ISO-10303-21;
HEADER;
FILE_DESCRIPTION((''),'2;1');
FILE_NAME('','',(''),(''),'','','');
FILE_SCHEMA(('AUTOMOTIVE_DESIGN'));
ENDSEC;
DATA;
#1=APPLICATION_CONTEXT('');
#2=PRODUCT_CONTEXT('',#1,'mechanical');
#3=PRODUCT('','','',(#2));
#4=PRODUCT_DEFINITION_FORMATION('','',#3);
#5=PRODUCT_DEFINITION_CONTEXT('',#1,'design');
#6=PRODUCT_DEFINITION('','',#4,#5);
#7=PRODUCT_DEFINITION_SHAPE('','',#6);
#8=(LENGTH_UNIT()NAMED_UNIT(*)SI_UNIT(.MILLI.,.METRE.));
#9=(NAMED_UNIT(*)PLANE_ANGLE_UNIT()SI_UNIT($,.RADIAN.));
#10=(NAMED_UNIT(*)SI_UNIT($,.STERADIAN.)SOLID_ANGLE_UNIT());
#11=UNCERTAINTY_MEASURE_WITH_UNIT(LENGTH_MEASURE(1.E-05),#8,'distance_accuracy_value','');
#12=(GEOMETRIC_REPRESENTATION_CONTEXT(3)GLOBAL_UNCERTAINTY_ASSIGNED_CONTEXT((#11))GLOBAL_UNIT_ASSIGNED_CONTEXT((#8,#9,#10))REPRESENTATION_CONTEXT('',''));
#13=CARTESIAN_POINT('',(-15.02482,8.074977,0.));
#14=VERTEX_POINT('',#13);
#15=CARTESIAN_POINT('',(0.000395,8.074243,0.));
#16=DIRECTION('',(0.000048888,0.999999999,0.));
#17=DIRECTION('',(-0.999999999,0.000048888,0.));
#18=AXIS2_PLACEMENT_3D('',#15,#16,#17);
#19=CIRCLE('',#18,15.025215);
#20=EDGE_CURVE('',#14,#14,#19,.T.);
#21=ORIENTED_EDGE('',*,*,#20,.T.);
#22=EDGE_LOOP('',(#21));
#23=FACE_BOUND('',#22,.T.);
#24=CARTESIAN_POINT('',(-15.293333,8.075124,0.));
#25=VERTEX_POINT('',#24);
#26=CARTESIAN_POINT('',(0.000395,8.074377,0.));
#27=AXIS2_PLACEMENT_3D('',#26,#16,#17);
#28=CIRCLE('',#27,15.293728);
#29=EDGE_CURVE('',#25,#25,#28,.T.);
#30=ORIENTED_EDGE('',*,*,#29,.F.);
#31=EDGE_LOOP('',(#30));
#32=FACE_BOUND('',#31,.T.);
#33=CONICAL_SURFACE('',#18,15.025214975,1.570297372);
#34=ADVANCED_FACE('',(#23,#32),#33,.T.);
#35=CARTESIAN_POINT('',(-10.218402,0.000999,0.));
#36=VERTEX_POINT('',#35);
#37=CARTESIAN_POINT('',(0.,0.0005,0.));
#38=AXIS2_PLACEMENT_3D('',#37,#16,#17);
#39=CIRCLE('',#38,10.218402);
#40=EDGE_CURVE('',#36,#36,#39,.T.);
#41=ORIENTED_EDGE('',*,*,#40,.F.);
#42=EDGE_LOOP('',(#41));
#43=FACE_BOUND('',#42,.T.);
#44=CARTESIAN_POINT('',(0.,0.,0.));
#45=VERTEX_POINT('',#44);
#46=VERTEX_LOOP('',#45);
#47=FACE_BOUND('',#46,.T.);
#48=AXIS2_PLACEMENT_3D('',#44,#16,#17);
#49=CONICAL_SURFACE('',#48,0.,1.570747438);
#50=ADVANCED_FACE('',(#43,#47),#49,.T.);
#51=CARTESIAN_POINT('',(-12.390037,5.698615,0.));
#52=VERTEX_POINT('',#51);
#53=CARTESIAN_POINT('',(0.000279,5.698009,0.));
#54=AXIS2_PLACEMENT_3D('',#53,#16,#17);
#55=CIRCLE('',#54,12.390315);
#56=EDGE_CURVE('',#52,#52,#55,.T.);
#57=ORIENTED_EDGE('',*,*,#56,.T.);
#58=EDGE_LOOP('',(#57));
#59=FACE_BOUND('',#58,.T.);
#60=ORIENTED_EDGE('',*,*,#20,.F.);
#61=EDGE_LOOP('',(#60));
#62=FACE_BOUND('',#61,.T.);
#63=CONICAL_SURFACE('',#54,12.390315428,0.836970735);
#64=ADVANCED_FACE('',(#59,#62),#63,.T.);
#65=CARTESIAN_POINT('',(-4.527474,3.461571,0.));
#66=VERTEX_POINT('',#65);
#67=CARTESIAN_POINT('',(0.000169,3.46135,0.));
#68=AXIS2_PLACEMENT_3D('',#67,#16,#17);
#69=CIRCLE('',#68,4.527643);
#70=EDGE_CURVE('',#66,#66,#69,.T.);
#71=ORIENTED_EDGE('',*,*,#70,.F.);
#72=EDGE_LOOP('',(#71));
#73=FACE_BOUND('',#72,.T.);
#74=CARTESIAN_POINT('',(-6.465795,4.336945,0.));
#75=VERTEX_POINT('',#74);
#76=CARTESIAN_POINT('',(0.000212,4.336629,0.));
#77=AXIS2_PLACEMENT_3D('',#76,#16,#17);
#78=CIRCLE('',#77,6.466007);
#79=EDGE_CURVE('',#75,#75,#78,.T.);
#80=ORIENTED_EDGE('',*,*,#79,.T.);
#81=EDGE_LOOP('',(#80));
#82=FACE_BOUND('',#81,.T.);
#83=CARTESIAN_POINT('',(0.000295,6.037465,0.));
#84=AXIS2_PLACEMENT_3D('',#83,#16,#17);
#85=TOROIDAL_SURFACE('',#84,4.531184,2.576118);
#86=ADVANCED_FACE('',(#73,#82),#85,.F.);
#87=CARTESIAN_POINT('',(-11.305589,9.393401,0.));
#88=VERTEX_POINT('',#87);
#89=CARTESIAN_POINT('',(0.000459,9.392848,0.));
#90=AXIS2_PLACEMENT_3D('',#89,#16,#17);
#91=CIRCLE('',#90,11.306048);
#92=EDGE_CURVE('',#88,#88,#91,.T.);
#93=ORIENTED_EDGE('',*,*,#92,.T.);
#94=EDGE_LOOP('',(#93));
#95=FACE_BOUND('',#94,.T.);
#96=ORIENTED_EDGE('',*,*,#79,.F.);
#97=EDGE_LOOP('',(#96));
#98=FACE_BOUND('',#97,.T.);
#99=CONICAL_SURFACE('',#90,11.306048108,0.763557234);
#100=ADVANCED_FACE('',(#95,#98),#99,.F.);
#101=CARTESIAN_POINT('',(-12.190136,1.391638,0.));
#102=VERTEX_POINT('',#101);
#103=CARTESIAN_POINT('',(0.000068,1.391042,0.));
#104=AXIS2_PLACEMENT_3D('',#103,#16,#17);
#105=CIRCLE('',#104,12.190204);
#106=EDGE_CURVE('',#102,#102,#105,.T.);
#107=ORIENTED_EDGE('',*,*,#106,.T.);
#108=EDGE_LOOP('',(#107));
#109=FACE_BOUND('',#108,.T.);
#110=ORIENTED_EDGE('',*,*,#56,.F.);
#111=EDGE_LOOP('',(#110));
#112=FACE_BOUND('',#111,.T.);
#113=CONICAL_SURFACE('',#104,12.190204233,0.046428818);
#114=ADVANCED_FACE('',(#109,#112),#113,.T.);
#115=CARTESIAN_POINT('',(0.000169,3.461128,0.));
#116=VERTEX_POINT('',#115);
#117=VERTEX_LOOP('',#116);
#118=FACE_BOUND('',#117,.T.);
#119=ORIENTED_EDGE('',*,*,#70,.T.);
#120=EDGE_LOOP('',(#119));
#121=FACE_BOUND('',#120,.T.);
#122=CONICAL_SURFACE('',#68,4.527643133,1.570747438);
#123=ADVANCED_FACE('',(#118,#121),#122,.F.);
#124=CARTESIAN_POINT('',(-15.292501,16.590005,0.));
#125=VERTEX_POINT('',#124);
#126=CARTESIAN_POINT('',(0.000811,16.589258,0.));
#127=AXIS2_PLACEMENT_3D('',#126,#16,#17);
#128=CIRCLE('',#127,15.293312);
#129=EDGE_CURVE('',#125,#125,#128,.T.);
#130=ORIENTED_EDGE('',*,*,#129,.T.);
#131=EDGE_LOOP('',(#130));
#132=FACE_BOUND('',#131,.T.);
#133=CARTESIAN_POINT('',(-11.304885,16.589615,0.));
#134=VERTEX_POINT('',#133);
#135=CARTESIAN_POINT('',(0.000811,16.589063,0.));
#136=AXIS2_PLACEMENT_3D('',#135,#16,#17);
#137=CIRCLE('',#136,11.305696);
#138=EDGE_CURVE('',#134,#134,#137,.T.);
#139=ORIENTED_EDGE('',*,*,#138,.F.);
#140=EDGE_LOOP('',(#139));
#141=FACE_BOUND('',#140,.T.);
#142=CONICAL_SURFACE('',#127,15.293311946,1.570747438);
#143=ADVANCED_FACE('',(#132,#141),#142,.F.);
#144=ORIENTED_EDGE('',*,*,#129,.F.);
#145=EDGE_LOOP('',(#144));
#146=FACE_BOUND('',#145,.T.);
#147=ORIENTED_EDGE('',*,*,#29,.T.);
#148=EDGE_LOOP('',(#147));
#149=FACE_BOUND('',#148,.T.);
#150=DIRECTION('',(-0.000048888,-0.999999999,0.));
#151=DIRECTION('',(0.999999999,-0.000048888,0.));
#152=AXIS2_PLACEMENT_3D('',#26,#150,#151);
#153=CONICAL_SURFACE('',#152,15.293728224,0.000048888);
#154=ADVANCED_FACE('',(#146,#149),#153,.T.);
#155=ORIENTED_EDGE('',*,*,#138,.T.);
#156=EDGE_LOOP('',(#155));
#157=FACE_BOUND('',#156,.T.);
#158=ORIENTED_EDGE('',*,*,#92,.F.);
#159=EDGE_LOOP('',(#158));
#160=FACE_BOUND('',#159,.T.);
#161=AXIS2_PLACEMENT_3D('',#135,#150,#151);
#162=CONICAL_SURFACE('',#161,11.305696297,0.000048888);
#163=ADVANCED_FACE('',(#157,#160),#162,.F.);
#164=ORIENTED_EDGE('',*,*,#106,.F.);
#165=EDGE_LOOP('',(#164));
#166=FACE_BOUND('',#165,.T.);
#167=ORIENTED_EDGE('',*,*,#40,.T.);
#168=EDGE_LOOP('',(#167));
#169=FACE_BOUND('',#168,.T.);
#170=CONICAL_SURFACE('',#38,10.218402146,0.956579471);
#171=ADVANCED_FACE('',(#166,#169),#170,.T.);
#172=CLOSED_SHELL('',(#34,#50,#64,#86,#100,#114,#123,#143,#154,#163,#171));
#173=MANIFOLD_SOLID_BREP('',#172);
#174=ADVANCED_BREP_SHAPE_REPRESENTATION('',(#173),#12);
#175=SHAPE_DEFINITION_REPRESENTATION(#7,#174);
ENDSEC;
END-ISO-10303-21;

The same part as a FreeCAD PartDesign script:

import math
import FreeCAD as App
import Part
import Sketcher
Q = App.Units.Quantity

doc = App.newDocument("Part")
body = doc.addObject("PartDesign::Body", "Body")

# Sketch on XY plane
sketch1 = body.newObject("Sketcher::SketchObject", "Sketch")
sketch1.AttachmentSupport = (doc.getObject("XY_Plane"), [""])
sketch1.MapMode = "FlatFace"
sketch1.addGeometry(Part.LineSegment(App.Vector(0.000169, 3.461128, 0), App.Vector(0, 0, 0)), False)
sketch1.addGeometry(Part.LineSegment(App.Vector(0, 0, 0), App.Vector(10.218402, 0, 0)), False)
sketch1.addGeometry(Part.LineSegment(App.Vector(10.218402, 0, 0), App.Vector(12.190272, 1.390446, 0)), False)
sketch1.addGeometry(Part.LineSegment(App.Vector(12.190272, 1.390446, 0), App.Vector(12.390594, 5.697404, 0)), False)
sketch1.addGeometry(Part.LineSegment(App.Vector(12.390594, 5.697404, 0), App.Vector(15.02561, 8.073508, 0)), False)
sketch1.addGeometry(Part.LineSegment(App.Vector(15.02561, 8.073508, 0), App.Vector(15.294123, 8.073629, 0)), False)
sketch1.addGeometry(Part.LineSegment(App.Vector(15.294123, 8.073629, 0), App.Vector(15.294123, 16.58851, 0)), False)
sketch1.addGeometry(Part.LineSegment(App.Vector(15.294123, 16.58851, 0), App.Vector(11.306507, 16.58851, 0)), False)
sketch1.addGeometry(Part.LineSegment(App.Vector(11.306507, 16.58851, 0), App.Vector(11.306507, 9.392296, 0)), False)
sketch1.addGeometry(Part.LineSegment(App.Vector(11.306507, 9.392296, 0), App.Vector(6.466219, 4.336313, 0)), False)
sketch1.addGeometry(Part.ArcOfCircle(Part.Circle(App.Vector(4.531479, 6.037243, 0), App.Vector(0, 0, 1), 2.576118), math.radians(-90.081551), math.radians(-41.320382)), False)
sketch1.addGeometry(Part.LineSegment(App.Vector(4.527812, 3.461128, 0), App.Vector(0.000169, 3.461128, 0)), False)
sketch1.addGeometry(Part.LineSegment(App.Vector(0.000811, 16.589258, 0), App.Vector(0, 0, 0)), True)  # axis
sketch1.addConstraint(Sketcher.Constraint("Coincident", 0, 2, 1, 1))
sketch1.addConstraint(Sketcher.Constraint("Coincident", 1, 2, 2, 1))
sketch1.addConstraint(Sketcher.Constraint("Coincident", 2, 2, 3, 1))
sketch1.addConstraint(Sketcher.Constraint("Coincident", 3, 2, 4, 1))
sketch1.addConstraint(Sketcher.Constraint("Coincident", 4, 2, 5, 1))
sketch1.addConstraint(Sketcher.Constraint("Coincident", 5, 2, 6, 1))
sketch1.addConstraint(Sketcher.Constraint("Coincident", 6, 2, 7, 1))
sketch1.addConstraint(Sketcher.Constraint("Coincident", 7, 2, 8, 1))
sketch1.addConstraint(Sketcher.Constraint("Coincident", 8, 2, 9, 1))
sketch1.addConstraint(Sketcher.Constraint("Coincident", 9, 2, 10, 2))
sketch1.addConstraint(Sketcher.Constraint("Coincident", 10, 1, 11, 1))
sketch1.addConstraint(Sketcher.Constraint("Coincident", 11, 2, 0, 1))
sketch1.addConstraint(Sketcher.Constraint("Horizontal", 1))
sketch1.addConstraint(Sketcher.Constraint("Vertical", 6))
sketch1.addConstraint(Sketcher.Constraint("Horizontal", 7))
sketch1.addConstraint(Sketcher.Constraint("Vertical", 8))
sketch1.addConstraint(Sketcher.Constraint("Horizontal", 11))
sketch1.addConstraint(Sketcher.Constraint("Coincident", 0, 2, -1, 1))
sketch1.addConstraint(Sketcher.Constraint("Coincident", 12, 2, -1, 1))
sketch1.addConstraint(Sketcher.Constraint("Parallel", 0, 12))
sketch1.addConstraint(Sketcher.Constraint("Radius", 10, Q("2.576118 mm")))
sketch1.addConstraint(Sketcher.Constraint("DistanceY", 4, 2, 6, 2, Q("8.515002 mm")))
sketch1.addConstraint(Sketcher.Constraint("Distance", 2, Q("2.412802 mm")))
sketch1.addConstraint(Sketcher.Constraint("DistanceY", 6, 1, 6, 2, Q("8.514881 mm")))
sketch1.addConstraint(Sketcher.Constraint("Distance", 0, Q("3.461128 mm")))
sketch1.addConstraint(Sketcher.Constraint("DistanceX", 1, 1, 1, 2, Q("10.218402 mm")))
sketch1.addConstraint(Sketcher.Constraint("DistanceX", 7, 2, 7, 1, Q("3.987616 mm")))
sketch1.addConstraint(Sketcher.Constraint("DistanceX", 11, 2, 11, 1, Q("4.527643 mm")))
sketch1.addConstraint(Sketcher.Constraint("DistanceY", 8, 2, 8, 1, Q("7.196214 mm")))
sketch1.addConstraint(Sketcher.Constraint("DistanceX", -1, 1, 10, 3, Q("4.531479 mm")))
sketch1.addConstraint(Sketcher.Constraint("DistanceX", -1, 1, 4, 2, Q("15.02561 mm")))
sketch1.addConstraint(Sketcher.Constraint("DistanceY", -1, 1, 5, 2, Q("8.073629 mm")))
sketch1.addConstraint(Sketcher.Constraint("DistanceX", -1, 1, 9, 2, Q("6.466219 mm")))
sketch1.addConstraint(Sketcher.Constraint("DistanceX", -1, 1, 11, 2, Q("0.000169 mm")))
sketch1.addConstraint(Sketcher.Constraint("DistanceX", 1, 2, 2, 2, Q("1.97187 mm")))
sketch1.addConstraint(Sketcher.Constraint("DistanceX", 2, 2, 3, 2, Q("0.200322 mm")))
sketch1.addConstraint(Sketcher.Constraint("DistanceY", 3, 2, 10, 3, Q("0.33984 mm")))
sketch1.addConstraint(Sketcher.Constraint("DistanceX", 3, 2, 5, 2, Q("2.903529 mm")))
sketch1.addConstraint(Sketcher.Constraint("DistanceY", 11, 2, 12, 1, Q("13.128129 mm")))
revolution = body.newObject("PartDesign::Revolution", "Revolution")
revolution.Profile = sketch1
revolution.ReferenceAxis = (sketch1, ["Axis0"])
revolution.Angle = 360

doc.recompute()
